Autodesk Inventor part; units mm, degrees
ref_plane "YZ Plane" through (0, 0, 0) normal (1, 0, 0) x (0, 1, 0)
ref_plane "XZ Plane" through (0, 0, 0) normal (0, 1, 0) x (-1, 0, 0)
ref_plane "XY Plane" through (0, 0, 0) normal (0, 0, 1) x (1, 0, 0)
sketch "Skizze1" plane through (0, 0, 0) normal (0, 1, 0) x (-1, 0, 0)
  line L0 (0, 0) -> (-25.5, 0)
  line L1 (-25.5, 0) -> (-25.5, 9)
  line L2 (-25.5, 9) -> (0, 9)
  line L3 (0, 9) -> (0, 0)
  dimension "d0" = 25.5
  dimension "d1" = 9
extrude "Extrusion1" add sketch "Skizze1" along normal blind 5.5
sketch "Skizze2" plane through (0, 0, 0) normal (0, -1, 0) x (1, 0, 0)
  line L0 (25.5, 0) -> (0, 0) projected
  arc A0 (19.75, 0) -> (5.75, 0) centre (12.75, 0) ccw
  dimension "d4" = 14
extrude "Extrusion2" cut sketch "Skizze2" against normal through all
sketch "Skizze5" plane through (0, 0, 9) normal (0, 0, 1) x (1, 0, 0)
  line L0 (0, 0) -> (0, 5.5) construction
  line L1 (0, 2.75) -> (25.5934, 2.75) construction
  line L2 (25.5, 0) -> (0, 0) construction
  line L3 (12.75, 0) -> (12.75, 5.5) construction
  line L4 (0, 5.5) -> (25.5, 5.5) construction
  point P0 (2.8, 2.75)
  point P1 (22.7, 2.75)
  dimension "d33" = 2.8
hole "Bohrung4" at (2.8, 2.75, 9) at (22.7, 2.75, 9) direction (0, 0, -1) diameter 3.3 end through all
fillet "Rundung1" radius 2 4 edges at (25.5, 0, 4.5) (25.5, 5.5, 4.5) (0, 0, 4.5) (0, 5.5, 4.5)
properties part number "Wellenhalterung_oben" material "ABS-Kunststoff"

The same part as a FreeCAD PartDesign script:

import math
import FreeCAD as App
import Part
import Sketcher


def edges_at(feature, points):
    """Names of the edges that pass closest to the given points."""
    edges = feature.Shape.Edges
    near = lambda p: min(range(len(edges)), key=lambda i: edges[i].distToShape(Part.Vertex(*p))[0])
    return sorted({f"Edge{near(p) + 1}" for p in points})

doc = App.newDocument("Part")
body = doc.addObject("PartDesign::Body", "Body")

# Sketch on XZ plane
sketch1 = body.newObject("Sketcher::SketchObject", "Sketch")
sketch1.AttachmentSupport = (doc.getObject("XZ_Plane"), [""])
sketch1.MapMode = "FlatFace"
sketch1.addGeometry(Part.LineSegment(App.Vector(26, 0, 0), App.Vector(0, 0, 0)), False)
sketch1.addGeometry(Part.LineSegment(App.Vector(0, 0, 0), App.Vector(0, 9, 0)), False)
sketch1.addGeometry(Part.LineSegment(App.Vector(0, 9, 0), App.Vector(26, 9, 0)), False)
sketch1.addGeometry(Part.LineSegment(App.Vector(26, 9, 0), App.Vector(26, 0, 0)), False)
sketch1.addConstraint(Sketcher.Constraint("Coincident", 0, 2, 1, 1))
sketch1.addConstraint(Sketcher.Constraint("Coincident", 1, 2, 2, 1))
sketch1.addConstraint(Sketcher.Constraint("Coincident", 2, 2, 3, 1))
sketch1.addConstraint(Sketcher.Constraint("Coincident", 3, 2, 0, 1))
sketch1.addConstraint(Sketcher.Constraint("Horizontal", 0))
sketch1.addConstraint(Sketcher.Constraint("Vertical", 1))
sketch1.addConstraint(Sketcher.Constraint("Horizontal", 2))
sketch1.addConstraint(Sketcher.Constraint("Vertical", 3))
sketch1.addConstraint(Sketcher.Constraint("Coincident", 0, 2, -1, 1))
sketch1.addConstraint(Sketcher.Constraint("DistanceY", 1, 1, 1, 2, 9.0))
sketch1.addConstraint(Sketcher.Constraint("DistanceX", 0, 2, 0, 1, 25.5))
pad1 = body.newObject("PartDesign::Pad", "Pad")
pad1.Profile = sketch1
pad1.Length = 5.5
pad1.Reversed = True

# Sketch on XZ plane
sketch2 = body.newObject("Sketcher::SketchObject", "Sketch001")
sketch2.AttachmentSupport = (doc.getObject("XZ_Plane"), [""])
sketch2.MapMode = "FlatFace"
sketch2.addGeometry(Part.LineSegment(App.Vector(6, 0, 0), App.Vector(20, 0, 0)), False)
sketch2.addGeometry(Part.ArcOfCircle(Part.Circle(App.Vector(13, 0, 0), App.Vector(0, 0, 1), 7), math.radians(0), math.radians(180)), False)
sketch2.addConstraint(Sketcher.Constraint("Coincident", 0, 1, 1, 2))
sketch2.addConstraint(Sketcher.Constraint("Coincident", 1, 1, 0, 2))
sketch2.addConstraint(Sketcher.Constraint("Horizontal", 0))
sketch2.addConstraint(Sketcher.Constraint("PointOnObject", 1, 3, -1))
sketch2.addConstraint(Sketcher.Constraint("PointOnObject", 0, 1, -1))
sketch2.addConstraint(Sketcher.Constraint("Radius", 1, 7.0))
sketch2.addConstraint(Sketcher.Constraint("DistanceX", -1, 1, 1, 3, 12.75))
pocket1 = body.newObject("PartDesign::Pocket", "Pocket")
pocket1.Profile = sketch2
pocket1.Type = "ThroughAll"

# Sketch on XY plane
sketch3 = body.newObject("Sketcher::SketchObject", "Sketch002")
sketch3.AttachmentSupport = (doc.getObject("XY_Plane"), [""])
sketch3.MapMode = "FlatFace"
sketch3.AttachmentOffset = App.Placement(App.Vector(0, 0, 9), App.Rotation())
sketch3.addGeometry(Part.Circle(App.Vector(2.8, 2.8, 0), App.Vector(0, 0, 1), 1.6), False)
sketch3.addGeometry(Part.Circle(App.Vector(22.7, 2.8, 0), App.Vector(0, 0, 1), 1.6), False)
sketch3.addConstraint(Sketcher.Constraint("Equal", 0, 1))
sketch3.addConstraint(Sketcher.Constraint("Horizontal", 0, 3, 1, 3))
sketch3.addConstraint(Sketcher.Constraint("Diameter", 0, 3.3))
sketch3.addConstraint(Sketcher.Constraint("DistanceX", -1, 1, 0, 3, 2.8))
sketch3.addConstraint(Sketcher.Constraint("DistanceX", -1, 1, 1, 3, 22.7))
sketch3.addConstraint(Sketcher.Constraint("DistanceY", -1, 1, 0, 3, 2.75))
doc.recompute()
hole = body.newObject("PartDesign::Hole", "Hole")
hole.Profile = sketch3
hole.ThreadType = "None"
hole.Diameter = 3.3
hole.DepthType = "ThroughAll"
doc.recompute()

fillet = body.newObject("PartDesign::Fillet", "Fillet")
fillet.Base = (hole, edges_at(hole, [
    (25.5, 0, 4.5),
    (25.5, 5.5, 4.5),
    (0, 0, 4.5),
    (0, 5.5, 4.5),
]))
fillet.Radius = 2

doc.recompute()
